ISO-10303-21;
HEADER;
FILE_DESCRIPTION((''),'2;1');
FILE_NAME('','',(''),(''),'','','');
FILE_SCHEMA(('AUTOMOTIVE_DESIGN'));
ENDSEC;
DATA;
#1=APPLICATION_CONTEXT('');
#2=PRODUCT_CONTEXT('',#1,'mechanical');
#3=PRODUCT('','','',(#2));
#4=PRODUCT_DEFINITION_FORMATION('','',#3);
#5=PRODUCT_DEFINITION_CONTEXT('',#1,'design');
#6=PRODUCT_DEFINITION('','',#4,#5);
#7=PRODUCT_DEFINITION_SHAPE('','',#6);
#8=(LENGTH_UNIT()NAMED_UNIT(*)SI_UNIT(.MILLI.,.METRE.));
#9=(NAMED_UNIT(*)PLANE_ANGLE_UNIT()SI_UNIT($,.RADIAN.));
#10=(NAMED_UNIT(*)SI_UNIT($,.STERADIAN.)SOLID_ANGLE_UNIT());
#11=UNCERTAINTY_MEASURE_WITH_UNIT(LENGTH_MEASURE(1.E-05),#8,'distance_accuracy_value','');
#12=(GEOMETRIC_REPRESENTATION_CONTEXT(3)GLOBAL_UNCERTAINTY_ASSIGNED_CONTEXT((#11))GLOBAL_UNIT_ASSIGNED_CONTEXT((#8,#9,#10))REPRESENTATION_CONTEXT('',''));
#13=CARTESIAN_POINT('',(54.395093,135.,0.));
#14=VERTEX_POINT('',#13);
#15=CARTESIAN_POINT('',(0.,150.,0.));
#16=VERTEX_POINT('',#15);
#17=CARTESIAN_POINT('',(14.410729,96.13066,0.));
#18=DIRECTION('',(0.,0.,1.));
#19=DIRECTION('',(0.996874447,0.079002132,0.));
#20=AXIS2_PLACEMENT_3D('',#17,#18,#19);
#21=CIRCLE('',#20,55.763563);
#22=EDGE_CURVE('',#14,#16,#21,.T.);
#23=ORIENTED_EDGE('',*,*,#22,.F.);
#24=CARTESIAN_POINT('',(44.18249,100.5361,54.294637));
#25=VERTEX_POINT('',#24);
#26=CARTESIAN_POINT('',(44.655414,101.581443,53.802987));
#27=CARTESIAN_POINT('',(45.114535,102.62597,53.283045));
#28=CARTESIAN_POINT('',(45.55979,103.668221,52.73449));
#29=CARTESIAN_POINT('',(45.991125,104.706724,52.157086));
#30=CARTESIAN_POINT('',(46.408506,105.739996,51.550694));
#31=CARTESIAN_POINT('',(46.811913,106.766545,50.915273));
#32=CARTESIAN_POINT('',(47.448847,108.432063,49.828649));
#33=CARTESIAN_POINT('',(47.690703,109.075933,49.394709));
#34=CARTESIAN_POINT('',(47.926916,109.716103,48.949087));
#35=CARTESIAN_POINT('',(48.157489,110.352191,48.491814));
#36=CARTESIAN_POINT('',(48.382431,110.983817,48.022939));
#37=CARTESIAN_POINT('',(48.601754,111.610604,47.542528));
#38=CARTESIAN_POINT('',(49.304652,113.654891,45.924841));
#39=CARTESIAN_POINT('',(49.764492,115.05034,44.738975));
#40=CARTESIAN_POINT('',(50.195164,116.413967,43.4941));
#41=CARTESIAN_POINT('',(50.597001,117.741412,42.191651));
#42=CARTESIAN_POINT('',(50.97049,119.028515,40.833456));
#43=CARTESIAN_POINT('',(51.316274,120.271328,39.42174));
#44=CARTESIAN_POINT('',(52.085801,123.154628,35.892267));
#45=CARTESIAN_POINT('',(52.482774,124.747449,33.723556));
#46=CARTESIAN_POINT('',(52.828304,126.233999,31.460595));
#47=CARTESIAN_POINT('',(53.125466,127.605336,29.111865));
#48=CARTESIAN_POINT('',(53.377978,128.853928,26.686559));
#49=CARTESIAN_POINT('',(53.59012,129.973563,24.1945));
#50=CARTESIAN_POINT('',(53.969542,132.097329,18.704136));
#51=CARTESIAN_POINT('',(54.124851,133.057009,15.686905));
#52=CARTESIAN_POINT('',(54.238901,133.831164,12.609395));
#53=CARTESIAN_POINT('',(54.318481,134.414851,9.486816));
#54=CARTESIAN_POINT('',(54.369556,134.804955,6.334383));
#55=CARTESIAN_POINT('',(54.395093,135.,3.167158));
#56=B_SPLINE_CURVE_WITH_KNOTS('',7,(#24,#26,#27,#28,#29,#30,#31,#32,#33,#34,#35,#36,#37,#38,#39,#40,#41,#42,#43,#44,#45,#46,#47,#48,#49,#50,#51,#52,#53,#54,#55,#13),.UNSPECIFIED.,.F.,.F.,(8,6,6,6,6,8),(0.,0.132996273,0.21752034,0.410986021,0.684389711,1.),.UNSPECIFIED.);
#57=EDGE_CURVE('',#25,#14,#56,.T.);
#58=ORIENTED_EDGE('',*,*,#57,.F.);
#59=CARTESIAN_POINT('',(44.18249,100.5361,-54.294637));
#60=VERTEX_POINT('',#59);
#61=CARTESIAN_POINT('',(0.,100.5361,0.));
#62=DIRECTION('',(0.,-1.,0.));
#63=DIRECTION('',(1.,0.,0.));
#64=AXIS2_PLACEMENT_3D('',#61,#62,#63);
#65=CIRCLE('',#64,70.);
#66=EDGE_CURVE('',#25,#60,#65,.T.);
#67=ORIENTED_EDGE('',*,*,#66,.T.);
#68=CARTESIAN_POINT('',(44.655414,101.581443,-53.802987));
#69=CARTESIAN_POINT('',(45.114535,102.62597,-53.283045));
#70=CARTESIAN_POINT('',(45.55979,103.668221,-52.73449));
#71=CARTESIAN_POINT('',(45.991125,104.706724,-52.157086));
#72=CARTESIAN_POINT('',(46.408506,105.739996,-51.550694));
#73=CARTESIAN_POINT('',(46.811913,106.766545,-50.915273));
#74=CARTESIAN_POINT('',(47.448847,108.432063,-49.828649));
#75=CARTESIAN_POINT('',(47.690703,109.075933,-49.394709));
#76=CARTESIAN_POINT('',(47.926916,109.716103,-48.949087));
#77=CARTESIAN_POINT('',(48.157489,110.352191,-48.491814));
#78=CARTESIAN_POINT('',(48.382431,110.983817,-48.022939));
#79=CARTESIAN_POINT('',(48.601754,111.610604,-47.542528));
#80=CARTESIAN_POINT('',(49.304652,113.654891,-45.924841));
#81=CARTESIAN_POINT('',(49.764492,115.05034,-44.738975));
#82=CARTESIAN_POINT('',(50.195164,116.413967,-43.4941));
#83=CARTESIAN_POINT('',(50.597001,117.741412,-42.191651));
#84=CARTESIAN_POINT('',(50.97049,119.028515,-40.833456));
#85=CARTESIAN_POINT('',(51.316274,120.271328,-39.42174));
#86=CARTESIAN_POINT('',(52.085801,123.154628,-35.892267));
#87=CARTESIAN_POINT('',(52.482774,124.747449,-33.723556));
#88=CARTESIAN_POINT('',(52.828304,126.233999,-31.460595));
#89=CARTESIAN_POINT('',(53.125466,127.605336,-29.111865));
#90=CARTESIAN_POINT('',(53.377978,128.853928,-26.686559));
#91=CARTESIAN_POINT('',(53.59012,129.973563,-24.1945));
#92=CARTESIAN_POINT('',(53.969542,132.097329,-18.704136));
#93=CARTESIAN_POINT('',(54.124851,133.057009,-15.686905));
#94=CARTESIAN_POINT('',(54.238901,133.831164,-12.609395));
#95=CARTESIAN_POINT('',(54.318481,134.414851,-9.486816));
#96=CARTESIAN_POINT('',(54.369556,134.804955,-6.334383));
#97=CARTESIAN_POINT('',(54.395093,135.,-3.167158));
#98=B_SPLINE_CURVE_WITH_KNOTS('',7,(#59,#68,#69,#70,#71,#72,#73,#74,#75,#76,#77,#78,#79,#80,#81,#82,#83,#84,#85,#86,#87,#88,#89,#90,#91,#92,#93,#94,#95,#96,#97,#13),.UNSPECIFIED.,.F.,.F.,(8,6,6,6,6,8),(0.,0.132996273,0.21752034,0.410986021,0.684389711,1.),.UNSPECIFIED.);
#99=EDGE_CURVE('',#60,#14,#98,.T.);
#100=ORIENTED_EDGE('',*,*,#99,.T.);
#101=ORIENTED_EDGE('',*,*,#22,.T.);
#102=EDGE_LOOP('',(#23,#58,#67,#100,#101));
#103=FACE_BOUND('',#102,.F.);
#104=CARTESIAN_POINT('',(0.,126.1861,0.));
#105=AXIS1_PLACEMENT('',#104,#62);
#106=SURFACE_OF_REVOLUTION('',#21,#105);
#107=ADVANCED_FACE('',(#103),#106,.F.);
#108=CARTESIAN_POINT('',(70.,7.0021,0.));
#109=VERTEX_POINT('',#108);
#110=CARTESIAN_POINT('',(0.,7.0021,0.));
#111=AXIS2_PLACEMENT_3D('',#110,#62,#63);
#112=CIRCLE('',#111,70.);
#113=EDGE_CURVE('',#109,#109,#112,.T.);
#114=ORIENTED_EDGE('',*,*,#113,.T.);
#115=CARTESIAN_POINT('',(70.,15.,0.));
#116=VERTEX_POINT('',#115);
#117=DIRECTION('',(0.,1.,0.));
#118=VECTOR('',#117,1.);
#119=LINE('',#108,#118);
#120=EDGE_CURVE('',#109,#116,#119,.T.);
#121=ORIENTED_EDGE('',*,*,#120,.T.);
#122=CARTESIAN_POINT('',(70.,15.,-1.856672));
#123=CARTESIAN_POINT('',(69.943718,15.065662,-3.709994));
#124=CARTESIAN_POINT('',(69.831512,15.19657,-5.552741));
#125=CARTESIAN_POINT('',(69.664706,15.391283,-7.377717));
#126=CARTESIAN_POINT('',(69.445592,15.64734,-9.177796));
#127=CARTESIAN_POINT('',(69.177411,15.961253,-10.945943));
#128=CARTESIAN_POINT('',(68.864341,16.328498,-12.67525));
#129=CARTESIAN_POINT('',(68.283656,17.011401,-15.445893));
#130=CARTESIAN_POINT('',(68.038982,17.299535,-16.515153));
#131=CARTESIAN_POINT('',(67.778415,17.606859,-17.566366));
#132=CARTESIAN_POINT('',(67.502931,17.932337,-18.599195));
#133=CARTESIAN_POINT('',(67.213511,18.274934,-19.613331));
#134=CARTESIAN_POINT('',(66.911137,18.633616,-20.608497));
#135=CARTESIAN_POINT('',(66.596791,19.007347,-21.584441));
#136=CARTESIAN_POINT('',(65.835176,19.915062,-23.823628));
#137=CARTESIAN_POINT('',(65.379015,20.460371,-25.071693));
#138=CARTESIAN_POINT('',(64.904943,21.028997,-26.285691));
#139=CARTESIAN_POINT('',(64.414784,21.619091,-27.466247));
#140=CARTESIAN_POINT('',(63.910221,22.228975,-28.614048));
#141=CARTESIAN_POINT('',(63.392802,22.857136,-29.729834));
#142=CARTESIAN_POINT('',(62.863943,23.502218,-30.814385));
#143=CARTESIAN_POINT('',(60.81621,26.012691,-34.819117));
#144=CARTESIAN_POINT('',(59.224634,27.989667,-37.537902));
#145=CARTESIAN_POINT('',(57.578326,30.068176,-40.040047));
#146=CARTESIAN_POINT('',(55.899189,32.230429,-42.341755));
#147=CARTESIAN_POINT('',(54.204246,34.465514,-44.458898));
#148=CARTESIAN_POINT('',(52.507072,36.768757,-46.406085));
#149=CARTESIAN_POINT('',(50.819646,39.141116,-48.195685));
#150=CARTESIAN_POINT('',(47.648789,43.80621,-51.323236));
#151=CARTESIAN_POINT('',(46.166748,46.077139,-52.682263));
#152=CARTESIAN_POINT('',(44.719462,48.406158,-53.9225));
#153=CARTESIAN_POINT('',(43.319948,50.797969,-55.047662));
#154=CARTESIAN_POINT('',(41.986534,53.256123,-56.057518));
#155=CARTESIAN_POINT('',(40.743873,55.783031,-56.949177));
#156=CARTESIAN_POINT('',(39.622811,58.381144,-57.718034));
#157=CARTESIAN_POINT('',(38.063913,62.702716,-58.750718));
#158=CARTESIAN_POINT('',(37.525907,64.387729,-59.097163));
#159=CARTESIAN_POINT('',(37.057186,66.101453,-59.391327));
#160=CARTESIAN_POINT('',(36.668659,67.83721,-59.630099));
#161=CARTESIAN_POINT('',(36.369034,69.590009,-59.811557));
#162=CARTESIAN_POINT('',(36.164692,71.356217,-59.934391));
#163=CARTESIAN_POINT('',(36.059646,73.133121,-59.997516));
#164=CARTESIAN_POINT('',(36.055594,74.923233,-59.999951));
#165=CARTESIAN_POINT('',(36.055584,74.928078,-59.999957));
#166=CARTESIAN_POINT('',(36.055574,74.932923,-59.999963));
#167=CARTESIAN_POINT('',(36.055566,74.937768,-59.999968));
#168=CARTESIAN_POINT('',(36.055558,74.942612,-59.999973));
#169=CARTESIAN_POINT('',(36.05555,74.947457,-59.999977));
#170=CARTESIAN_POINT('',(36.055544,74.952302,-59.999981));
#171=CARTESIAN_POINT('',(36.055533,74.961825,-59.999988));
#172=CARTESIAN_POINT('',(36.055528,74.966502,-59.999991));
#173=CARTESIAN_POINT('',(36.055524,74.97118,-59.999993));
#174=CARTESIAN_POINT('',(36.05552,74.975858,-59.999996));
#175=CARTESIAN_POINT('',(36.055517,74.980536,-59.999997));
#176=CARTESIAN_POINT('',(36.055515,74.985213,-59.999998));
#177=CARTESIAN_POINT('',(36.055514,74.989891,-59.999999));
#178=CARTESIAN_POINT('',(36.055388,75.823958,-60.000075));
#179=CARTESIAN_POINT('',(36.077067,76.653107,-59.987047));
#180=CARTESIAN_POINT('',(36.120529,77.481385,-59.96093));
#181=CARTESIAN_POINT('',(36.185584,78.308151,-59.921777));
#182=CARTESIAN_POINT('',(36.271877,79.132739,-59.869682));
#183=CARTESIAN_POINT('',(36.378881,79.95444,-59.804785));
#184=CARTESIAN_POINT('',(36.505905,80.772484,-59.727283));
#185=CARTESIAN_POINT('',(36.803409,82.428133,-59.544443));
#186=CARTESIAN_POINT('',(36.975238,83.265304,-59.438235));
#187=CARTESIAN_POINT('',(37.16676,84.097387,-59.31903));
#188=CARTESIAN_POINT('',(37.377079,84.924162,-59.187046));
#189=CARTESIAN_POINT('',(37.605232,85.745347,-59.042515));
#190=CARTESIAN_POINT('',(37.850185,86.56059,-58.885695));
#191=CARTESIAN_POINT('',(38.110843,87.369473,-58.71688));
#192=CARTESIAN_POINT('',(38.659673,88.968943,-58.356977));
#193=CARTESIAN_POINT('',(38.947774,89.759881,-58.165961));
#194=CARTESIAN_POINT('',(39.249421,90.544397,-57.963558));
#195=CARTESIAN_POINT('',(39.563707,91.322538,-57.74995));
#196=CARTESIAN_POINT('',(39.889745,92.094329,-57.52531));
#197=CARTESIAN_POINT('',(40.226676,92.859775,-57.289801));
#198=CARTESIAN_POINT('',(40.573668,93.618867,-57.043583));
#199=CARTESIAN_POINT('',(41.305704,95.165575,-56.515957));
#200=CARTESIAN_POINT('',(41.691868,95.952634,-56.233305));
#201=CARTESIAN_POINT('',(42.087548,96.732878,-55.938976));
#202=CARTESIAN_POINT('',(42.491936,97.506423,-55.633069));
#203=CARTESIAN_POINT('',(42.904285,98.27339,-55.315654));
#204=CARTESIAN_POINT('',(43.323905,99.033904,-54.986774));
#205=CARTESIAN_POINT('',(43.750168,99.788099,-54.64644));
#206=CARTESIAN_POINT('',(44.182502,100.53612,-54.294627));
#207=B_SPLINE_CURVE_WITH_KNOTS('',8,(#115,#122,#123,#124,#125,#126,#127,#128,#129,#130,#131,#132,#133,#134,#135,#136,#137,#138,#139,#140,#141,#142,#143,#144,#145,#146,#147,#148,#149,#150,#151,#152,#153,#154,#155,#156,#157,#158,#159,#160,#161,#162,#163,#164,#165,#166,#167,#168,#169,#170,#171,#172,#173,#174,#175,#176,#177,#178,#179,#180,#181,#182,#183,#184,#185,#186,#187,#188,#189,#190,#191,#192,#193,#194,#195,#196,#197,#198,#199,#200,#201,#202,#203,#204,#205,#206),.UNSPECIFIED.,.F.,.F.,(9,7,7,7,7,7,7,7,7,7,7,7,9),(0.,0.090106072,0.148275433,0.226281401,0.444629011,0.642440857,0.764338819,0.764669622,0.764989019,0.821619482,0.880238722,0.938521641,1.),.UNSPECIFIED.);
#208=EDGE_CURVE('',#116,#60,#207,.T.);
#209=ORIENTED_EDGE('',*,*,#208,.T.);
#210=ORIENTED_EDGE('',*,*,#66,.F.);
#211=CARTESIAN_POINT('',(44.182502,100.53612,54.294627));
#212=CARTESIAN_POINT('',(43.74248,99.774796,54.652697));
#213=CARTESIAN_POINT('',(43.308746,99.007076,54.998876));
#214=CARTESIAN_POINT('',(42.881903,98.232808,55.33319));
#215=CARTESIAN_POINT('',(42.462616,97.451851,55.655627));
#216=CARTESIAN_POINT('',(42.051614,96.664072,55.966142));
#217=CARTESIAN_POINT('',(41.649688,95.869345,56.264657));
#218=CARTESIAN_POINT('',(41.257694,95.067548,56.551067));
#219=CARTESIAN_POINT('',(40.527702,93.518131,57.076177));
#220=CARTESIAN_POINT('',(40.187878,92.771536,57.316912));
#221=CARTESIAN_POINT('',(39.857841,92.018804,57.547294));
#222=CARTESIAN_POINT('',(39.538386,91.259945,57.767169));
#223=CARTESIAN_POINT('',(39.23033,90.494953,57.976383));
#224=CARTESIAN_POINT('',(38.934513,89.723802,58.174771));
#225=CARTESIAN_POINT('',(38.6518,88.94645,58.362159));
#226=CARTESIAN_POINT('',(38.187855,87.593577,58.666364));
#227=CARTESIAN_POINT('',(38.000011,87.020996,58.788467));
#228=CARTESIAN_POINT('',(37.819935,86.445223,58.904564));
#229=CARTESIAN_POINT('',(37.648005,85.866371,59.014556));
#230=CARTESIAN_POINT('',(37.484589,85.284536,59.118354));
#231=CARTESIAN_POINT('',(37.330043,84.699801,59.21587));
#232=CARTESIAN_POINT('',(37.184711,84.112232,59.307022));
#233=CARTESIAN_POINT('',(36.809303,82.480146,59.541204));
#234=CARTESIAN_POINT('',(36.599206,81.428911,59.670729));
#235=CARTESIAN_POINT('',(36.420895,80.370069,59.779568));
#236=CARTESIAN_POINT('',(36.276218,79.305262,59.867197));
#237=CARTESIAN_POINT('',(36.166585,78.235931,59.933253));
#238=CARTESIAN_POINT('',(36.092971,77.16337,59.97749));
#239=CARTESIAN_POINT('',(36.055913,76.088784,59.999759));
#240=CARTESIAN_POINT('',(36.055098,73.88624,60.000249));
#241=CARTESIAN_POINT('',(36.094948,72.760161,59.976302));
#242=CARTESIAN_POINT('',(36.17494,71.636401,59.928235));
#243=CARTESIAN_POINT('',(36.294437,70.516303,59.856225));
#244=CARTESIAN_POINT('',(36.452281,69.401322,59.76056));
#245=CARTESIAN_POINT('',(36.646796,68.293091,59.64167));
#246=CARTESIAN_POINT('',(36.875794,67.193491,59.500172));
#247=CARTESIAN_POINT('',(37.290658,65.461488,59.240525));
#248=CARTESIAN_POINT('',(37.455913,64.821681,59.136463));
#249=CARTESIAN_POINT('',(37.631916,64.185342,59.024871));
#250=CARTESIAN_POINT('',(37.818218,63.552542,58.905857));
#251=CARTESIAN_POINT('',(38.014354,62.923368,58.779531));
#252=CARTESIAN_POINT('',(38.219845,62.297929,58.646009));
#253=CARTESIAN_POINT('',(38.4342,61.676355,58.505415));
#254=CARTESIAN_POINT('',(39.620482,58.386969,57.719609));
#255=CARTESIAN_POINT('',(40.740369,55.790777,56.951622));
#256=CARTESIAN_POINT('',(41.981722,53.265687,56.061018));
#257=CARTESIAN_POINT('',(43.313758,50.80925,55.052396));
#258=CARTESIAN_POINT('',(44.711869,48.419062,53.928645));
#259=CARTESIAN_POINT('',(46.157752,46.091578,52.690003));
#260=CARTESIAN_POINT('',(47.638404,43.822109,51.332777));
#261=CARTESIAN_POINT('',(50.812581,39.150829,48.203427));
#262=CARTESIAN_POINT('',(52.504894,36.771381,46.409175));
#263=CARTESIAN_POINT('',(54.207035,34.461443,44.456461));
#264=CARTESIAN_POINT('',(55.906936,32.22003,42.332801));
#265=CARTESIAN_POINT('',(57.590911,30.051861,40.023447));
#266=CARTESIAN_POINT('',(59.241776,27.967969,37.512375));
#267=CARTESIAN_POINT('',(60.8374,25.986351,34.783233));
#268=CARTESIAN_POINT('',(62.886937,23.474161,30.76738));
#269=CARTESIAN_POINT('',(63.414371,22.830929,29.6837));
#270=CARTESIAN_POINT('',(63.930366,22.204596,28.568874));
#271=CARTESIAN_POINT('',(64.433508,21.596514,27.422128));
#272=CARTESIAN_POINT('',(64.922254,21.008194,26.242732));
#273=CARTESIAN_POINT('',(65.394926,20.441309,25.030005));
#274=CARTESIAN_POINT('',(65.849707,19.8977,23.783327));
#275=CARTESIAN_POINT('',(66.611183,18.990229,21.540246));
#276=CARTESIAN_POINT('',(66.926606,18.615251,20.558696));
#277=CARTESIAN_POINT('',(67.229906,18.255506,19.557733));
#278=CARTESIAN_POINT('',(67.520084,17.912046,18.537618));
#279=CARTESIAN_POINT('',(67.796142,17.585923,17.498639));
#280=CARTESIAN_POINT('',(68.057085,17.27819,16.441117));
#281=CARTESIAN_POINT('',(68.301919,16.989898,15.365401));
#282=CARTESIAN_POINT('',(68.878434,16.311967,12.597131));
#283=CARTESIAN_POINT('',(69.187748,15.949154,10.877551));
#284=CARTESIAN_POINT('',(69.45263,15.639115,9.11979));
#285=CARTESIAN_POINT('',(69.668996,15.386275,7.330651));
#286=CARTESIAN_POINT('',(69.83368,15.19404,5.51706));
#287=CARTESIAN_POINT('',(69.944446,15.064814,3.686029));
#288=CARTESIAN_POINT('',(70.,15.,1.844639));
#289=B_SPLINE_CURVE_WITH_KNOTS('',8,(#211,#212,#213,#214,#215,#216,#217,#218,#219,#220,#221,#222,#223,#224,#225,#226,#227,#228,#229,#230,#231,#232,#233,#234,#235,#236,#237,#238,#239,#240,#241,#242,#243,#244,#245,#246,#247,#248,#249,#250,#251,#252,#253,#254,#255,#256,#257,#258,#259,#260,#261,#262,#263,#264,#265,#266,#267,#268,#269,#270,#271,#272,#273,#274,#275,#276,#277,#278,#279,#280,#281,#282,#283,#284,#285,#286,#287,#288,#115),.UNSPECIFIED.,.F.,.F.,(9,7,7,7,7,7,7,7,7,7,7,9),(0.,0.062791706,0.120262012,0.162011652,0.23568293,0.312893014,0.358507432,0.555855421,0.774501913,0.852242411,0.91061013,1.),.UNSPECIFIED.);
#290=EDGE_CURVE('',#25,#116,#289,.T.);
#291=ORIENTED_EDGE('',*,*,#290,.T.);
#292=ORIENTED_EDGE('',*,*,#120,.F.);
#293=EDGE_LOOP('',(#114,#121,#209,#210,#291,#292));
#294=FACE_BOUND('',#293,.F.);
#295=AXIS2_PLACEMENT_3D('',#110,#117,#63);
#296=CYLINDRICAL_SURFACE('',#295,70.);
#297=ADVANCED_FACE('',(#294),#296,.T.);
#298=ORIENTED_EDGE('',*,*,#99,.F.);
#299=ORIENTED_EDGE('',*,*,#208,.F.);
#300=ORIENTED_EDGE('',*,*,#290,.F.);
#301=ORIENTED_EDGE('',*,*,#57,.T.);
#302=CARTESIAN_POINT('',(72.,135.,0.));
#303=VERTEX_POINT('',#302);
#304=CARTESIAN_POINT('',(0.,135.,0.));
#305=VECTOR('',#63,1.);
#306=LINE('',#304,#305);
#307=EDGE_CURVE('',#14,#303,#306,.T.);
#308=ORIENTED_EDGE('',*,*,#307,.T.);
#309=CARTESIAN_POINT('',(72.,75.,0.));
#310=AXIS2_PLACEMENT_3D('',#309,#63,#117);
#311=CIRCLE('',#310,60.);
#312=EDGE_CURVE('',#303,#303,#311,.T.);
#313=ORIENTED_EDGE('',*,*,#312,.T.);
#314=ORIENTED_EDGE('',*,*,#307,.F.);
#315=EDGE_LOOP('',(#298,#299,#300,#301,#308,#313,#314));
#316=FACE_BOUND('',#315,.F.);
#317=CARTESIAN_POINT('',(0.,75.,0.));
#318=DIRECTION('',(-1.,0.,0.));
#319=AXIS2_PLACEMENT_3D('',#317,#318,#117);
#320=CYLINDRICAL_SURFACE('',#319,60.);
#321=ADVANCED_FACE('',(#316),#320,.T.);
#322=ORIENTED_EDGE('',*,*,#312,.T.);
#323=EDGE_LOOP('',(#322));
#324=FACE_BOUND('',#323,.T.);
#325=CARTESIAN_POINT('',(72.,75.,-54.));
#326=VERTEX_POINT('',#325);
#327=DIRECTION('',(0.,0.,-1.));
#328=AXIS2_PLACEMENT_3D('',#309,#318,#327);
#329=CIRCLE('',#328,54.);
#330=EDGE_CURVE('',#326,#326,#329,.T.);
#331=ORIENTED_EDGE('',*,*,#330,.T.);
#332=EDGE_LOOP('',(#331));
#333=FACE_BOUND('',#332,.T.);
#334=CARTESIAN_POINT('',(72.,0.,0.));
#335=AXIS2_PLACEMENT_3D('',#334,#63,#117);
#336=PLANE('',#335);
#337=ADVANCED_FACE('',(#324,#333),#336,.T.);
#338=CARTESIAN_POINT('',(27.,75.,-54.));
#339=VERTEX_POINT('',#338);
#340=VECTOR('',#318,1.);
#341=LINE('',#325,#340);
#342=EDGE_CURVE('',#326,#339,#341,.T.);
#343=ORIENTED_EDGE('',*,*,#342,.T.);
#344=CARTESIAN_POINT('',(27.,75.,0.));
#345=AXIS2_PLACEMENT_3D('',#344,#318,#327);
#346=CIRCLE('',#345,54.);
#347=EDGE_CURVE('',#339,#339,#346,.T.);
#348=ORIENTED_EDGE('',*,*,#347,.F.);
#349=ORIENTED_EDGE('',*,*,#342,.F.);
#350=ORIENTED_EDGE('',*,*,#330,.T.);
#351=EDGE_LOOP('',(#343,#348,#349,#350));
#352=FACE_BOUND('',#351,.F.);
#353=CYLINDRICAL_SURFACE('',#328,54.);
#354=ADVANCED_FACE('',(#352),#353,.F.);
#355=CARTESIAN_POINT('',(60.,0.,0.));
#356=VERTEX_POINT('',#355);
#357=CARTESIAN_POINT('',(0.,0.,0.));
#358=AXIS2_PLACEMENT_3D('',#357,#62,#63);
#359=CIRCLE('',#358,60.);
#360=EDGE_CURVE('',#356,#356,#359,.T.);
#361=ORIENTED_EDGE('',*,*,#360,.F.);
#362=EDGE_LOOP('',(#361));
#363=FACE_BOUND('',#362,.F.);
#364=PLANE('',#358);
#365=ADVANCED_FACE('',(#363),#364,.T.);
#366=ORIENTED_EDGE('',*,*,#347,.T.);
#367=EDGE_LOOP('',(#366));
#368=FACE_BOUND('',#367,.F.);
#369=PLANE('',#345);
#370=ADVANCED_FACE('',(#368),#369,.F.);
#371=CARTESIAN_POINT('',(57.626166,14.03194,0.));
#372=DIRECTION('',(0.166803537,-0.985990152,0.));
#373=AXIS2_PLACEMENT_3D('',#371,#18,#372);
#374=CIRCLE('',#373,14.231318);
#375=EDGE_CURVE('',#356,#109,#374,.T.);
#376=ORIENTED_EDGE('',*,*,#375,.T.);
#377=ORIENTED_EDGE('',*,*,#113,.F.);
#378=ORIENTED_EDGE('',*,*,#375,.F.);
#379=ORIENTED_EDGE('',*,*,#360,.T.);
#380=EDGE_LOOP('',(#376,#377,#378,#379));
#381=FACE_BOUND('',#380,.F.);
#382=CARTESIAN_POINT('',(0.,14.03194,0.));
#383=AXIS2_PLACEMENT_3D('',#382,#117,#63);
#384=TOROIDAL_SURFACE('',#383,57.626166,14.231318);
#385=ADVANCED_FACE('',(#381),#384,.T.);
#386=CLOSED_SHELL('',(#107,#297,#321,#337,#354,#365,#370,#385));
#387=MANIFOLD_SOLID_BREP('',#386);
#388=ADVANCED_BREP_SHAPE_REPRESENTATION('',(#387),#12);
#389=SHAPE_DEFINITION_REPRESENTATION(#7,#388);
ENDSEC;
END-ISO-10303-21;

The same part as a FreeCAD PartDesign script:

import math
import FreeCAD as App
import Part
import Sketcher
from FreeCAD import Vector
Q = App.Units.Quantity

doc = App.newDocument("Part")
body = doc.addObject("PartDesign::Body", "Body")

sketch1 = body.newObject("Sketcher::SketchObject", "Sketch")
sketch1.AttachmentSupport = (doc.getObject("XY_Plane"), [""])
sketch1.MapMode = "FlatFace"
sketch1.addGeometry([
    Part.LineSegment(Vector(0, 150, 0), Vector(0, 0, 0)),
    Part.LineSegment(Vector(0, 0, 0), Vector(60, 0, 0)),
    Part.ArcOfCircle(Part.Circle(Vector(58, 14, 0), Vector(0, 0, 1), 14), math.radians(-80), math.radians(-30)),
    Part.LineSegment(Vector(70, 7, 0), Vector(70, 101, 0)),
    Part.ArcOfCircle(Part.Circle(Vector(14, 96, 0), Vector(0, 0, 1), 56), math.radians(5), math.radians(105)),
], False)
sketch1.addConstraint([
    Sketcher.Constraint("Coincident", 0, 2, 1, 1),
    Sketcher.Constraint("Coincident", 1, 2, 2, 1),
    Sketcher.Constraint("Coincident", 2, 2, 3, 1),
    Sketcher.Constraint("Coincident", 3, 2, 4, 1),
    Sketcher.Constraint("Coincident", 4, 2, 0, 1),
    Sketcher.Constraint("Vertical", 0),
    Sketcher.Constraint("Horizontal", 1),
    Sketcher.Constraint("Vertical", 3),
    Sketcher.Constraint("Coincident", 0, 2, -1, 1),
    Sketcher.Constraint("DistanceX", 1, 1, 1, 2, Q("60 mm")),
    Sketcher.Constraint("DistanceY", 0, 2, 0, 1, Q("150 mm")),
    Sketcher.Constraint("DistanceX", 1, 2, 2, 2, Q("10 mm")),
    Sketcher.Constraint("Radius", 2, Q("14.2315 mm")),
    Sketcher.Constraint("Radius", 4, Q("55.7635 mm")),
    Sketcher.Constraint("DistanceY", 3, 1, 3, 2, Q("93.534 mm")),
    Sketcher.Constraint("DistanceY", 2, 2, 2, 3, Q("7.03 mm")),
])
revolution = body.newObject("PartDesign::Revolution", "Revolution")
revolution.Profile = sketch1
revolution.ReferenceAxis = (sketch1, ["V_Axis"])
revolution.Angle = 360

sketch2 = body.newObject("Sketcher::SketchObject", "Sketch001")
sketch2.AttachmentSupport = (doc.getObject("YZ_Plane"), [""])
sketch2.MapMode = "FlatFace"
sketch2.addGeometry(Part.Circle(Vector(75, 0, 0), Vector(0, 0, 1), 60), False)
sketch2.addConstraint([
    Sketcher.Constraint("PointOnObject", 0, 3, -1),
    Sketcher.Constraint("Diameter", 0, Q("120 mm")),
    Sketcher.Constraint("DistanceX", -1, 1, 0, 3, Q("75 mm")),
])
pad1 = body.newObject("PartDesign::Pad", "Pad")
pad1.Profile = sketch2
pad1.Length = 72

sketch3 = body.newObject("Sketcher::SketchObject", "Sketch002")
sketch3.AttachmentSupport = (doc.getObject("YZ_Plane"), [""])
sketch3.MapMode = "FlatFace"
sketch3.AttachmentOffset = App.Placement(Vector(0, 0, 72), App.Rotation())
sketch3.addGeometry(Part.Circle(Vector(75, 0, 0), Vector(0, 0, 1), 54), False)
sketch3.addConstraint([
    Sketcher.Constraint("PointOnObject", 0, 3, -1),
    Sketcher.Constraint("Diameter", 0, Q("108 mm")),
    Sketcher.Constraint("DistanceX", -1, 1, 0, 3, Q("75 mm")),
])
doc.recompute()
hole = body.newObject("PartDesign::Hole", "Hole")
hole.Profile = sketch3
hole.ThreadType = "None"
hole.Diameter = 108
hole.DepthType = "Dimension"
hole.Depth = 45
hole.DrillPoint = "Flat"

doc.recompute()
